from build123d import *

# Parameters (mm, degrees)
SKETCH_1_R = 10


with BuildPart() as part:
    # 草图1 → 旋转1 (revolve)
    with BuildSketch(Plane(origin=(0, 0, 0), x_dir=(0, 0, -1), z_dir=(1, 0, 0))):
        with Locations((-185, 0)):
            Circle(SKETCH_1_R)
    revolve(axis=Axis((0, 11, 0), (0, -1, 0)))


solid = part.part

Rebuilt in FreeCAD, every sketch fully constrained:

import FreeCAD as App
import Part
import Sketcher

V = App.Vector
Q = App.Units.Quantity

doc = App.newDocument("Part")
body = doc.addObject("PartDesign::Body", "Body")

# Sketch on YZ plane
sketch1 = doc.addObject("Sketcher::SketchObject", "Sketch")
body.addObject(sketch1)
sketch1.AttachmentSupport = (doc.YZ_Plane, [""])
sketch1.MapMode = "FlatFace"
sketch1.addGeometry(Part.Circle(V(0, 185, 0), V(0, 0, 1), 10), False)
sketch1.addConstraint(Sketcher.Constraint("PointOnObject", 0, 3, -2))
sketch1.addConstraint(Sketcher.Constraint("Diameter", 0, Q("20 mm")))
sketch1.addConstraint(Sketcher.Constraint("DistanceY", -1, 1, 0, 3, Q("185 mm")))
revolution = doc.addObject("PartDesign::Revolution", "Revolution")
body.addObject(revolution)
revolution.Profile = sketch1
revolution.ReferenceAxis = (sketch1, ["H_Axis"])
revolution.Angle = 360

doc.recompute()
